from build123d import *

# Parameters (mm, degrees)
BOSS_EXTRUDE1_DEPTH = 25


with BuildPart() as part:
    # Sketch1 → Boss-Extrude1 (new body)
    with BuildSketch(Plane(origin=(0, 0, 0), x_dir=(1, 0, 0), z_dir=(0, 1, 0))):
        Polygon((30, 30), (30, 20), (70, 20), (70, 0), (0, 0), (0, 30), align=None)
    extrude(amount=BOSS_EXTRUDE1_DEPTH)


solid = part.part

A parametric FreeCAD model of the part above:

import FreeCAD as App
import Part
import Sketcher
from FreeCAD import Vector
Q = App.Units.Quantity


def add_polygon(sketch, points):
    """Adds a closed chain of lines whose ends are joined by coincident constraints."""
    first, n = sketch.GeometryCount, len(points)
    for a, b in zip(points, points[1:] + points[:1]):
        sketch.addGeometry(Part.LineSegment(App.Vector(*a, 0), App.Vector(*b, 0)), False)
    for i in range(n):
        sketch.addConstraint(Sketcher.Constraint("Coincident", first + i, 2, first + (i + 1) % n, 1))

doc = App.newDocument("Part")
params = doc.addObject("Spreadsheet::Sheet", "Params")
for row, (alias, value) in enumerate([
    ("sketch1_width", "30 mm"),
    ("sketch1_width2", "70 mm"),
    ("sketch1_height", "10 mm"),
    ("pad1_length", "25 mm"),
], start=1):
    params.set(f"A{row}", alias)
    params.set(f"B{row}", "=" + value)
    params.setAlias(f"B{row}", alias)

body = doc.addObject("PartDesign::Body", "Body")

sketch1 = body.newObject("Sketcher::SketchObject", "Sketch")
sketch1.AttachmentSupport = (doc.getObject("XZ_Plane"), [""])
sketch1.MapMode = "FlatFace"
add_polygon(sketch1, [(30, -20), (30, -30), (0, -30), (0, 0), (70, 0), (70, -20)])
sketch1.addConstraint(Sketcher.Constraint("Vertical", 0))
sketch1.addConstraint(Sketcher.Constraint("Horizontal", 1))
sketch1.addConstraint(Sketcher.Constraint("Vertical", 2))
sketch1.addConstraint(Sketcher.Constraint("Horizontal", 3))
sketch1.addConstraint(Sketcher.Constraint("Vertical", 4))
sketch1.addConstraint(Sketcher.Constraint("Horizontal", 5))
sketch1.addConstraint(Sketcher.Constraint("Coincident", 2, 2, -1, 1))
sketch1.addConstraint(Sketcher.Constraint("Equal", 1, 2))
sketch1.addConstraint(Sketcher.Constraint("DistanceX", 1, 2, 1, 1, Q("30 mm")))
sketch1.addConstraint(Sketcher.Constraint("DistanceX", 3, 1, 3, 2, Q("70 mm")))
sketch1.addConstraint(Sketcher.Constraint("DistanceY", 0, 2, 0, 1, Q("10 mm")))
sketch1.setExpression("Constraints[14]", "Params.sketch1_width")
sketch1.setExpression("Constraints[15]", "Params.sketch1_width2")
sketch1.setExpression("Constraints[16]", "Params.sketch1_height")
pad1 = body.newObject("PartDesign::Pad", "Pad")
pad1.Profile = sketch1
pad1.setExpression("Length", "Params.pad1_length")
pad1.Reversed = True

doc.recompute()
